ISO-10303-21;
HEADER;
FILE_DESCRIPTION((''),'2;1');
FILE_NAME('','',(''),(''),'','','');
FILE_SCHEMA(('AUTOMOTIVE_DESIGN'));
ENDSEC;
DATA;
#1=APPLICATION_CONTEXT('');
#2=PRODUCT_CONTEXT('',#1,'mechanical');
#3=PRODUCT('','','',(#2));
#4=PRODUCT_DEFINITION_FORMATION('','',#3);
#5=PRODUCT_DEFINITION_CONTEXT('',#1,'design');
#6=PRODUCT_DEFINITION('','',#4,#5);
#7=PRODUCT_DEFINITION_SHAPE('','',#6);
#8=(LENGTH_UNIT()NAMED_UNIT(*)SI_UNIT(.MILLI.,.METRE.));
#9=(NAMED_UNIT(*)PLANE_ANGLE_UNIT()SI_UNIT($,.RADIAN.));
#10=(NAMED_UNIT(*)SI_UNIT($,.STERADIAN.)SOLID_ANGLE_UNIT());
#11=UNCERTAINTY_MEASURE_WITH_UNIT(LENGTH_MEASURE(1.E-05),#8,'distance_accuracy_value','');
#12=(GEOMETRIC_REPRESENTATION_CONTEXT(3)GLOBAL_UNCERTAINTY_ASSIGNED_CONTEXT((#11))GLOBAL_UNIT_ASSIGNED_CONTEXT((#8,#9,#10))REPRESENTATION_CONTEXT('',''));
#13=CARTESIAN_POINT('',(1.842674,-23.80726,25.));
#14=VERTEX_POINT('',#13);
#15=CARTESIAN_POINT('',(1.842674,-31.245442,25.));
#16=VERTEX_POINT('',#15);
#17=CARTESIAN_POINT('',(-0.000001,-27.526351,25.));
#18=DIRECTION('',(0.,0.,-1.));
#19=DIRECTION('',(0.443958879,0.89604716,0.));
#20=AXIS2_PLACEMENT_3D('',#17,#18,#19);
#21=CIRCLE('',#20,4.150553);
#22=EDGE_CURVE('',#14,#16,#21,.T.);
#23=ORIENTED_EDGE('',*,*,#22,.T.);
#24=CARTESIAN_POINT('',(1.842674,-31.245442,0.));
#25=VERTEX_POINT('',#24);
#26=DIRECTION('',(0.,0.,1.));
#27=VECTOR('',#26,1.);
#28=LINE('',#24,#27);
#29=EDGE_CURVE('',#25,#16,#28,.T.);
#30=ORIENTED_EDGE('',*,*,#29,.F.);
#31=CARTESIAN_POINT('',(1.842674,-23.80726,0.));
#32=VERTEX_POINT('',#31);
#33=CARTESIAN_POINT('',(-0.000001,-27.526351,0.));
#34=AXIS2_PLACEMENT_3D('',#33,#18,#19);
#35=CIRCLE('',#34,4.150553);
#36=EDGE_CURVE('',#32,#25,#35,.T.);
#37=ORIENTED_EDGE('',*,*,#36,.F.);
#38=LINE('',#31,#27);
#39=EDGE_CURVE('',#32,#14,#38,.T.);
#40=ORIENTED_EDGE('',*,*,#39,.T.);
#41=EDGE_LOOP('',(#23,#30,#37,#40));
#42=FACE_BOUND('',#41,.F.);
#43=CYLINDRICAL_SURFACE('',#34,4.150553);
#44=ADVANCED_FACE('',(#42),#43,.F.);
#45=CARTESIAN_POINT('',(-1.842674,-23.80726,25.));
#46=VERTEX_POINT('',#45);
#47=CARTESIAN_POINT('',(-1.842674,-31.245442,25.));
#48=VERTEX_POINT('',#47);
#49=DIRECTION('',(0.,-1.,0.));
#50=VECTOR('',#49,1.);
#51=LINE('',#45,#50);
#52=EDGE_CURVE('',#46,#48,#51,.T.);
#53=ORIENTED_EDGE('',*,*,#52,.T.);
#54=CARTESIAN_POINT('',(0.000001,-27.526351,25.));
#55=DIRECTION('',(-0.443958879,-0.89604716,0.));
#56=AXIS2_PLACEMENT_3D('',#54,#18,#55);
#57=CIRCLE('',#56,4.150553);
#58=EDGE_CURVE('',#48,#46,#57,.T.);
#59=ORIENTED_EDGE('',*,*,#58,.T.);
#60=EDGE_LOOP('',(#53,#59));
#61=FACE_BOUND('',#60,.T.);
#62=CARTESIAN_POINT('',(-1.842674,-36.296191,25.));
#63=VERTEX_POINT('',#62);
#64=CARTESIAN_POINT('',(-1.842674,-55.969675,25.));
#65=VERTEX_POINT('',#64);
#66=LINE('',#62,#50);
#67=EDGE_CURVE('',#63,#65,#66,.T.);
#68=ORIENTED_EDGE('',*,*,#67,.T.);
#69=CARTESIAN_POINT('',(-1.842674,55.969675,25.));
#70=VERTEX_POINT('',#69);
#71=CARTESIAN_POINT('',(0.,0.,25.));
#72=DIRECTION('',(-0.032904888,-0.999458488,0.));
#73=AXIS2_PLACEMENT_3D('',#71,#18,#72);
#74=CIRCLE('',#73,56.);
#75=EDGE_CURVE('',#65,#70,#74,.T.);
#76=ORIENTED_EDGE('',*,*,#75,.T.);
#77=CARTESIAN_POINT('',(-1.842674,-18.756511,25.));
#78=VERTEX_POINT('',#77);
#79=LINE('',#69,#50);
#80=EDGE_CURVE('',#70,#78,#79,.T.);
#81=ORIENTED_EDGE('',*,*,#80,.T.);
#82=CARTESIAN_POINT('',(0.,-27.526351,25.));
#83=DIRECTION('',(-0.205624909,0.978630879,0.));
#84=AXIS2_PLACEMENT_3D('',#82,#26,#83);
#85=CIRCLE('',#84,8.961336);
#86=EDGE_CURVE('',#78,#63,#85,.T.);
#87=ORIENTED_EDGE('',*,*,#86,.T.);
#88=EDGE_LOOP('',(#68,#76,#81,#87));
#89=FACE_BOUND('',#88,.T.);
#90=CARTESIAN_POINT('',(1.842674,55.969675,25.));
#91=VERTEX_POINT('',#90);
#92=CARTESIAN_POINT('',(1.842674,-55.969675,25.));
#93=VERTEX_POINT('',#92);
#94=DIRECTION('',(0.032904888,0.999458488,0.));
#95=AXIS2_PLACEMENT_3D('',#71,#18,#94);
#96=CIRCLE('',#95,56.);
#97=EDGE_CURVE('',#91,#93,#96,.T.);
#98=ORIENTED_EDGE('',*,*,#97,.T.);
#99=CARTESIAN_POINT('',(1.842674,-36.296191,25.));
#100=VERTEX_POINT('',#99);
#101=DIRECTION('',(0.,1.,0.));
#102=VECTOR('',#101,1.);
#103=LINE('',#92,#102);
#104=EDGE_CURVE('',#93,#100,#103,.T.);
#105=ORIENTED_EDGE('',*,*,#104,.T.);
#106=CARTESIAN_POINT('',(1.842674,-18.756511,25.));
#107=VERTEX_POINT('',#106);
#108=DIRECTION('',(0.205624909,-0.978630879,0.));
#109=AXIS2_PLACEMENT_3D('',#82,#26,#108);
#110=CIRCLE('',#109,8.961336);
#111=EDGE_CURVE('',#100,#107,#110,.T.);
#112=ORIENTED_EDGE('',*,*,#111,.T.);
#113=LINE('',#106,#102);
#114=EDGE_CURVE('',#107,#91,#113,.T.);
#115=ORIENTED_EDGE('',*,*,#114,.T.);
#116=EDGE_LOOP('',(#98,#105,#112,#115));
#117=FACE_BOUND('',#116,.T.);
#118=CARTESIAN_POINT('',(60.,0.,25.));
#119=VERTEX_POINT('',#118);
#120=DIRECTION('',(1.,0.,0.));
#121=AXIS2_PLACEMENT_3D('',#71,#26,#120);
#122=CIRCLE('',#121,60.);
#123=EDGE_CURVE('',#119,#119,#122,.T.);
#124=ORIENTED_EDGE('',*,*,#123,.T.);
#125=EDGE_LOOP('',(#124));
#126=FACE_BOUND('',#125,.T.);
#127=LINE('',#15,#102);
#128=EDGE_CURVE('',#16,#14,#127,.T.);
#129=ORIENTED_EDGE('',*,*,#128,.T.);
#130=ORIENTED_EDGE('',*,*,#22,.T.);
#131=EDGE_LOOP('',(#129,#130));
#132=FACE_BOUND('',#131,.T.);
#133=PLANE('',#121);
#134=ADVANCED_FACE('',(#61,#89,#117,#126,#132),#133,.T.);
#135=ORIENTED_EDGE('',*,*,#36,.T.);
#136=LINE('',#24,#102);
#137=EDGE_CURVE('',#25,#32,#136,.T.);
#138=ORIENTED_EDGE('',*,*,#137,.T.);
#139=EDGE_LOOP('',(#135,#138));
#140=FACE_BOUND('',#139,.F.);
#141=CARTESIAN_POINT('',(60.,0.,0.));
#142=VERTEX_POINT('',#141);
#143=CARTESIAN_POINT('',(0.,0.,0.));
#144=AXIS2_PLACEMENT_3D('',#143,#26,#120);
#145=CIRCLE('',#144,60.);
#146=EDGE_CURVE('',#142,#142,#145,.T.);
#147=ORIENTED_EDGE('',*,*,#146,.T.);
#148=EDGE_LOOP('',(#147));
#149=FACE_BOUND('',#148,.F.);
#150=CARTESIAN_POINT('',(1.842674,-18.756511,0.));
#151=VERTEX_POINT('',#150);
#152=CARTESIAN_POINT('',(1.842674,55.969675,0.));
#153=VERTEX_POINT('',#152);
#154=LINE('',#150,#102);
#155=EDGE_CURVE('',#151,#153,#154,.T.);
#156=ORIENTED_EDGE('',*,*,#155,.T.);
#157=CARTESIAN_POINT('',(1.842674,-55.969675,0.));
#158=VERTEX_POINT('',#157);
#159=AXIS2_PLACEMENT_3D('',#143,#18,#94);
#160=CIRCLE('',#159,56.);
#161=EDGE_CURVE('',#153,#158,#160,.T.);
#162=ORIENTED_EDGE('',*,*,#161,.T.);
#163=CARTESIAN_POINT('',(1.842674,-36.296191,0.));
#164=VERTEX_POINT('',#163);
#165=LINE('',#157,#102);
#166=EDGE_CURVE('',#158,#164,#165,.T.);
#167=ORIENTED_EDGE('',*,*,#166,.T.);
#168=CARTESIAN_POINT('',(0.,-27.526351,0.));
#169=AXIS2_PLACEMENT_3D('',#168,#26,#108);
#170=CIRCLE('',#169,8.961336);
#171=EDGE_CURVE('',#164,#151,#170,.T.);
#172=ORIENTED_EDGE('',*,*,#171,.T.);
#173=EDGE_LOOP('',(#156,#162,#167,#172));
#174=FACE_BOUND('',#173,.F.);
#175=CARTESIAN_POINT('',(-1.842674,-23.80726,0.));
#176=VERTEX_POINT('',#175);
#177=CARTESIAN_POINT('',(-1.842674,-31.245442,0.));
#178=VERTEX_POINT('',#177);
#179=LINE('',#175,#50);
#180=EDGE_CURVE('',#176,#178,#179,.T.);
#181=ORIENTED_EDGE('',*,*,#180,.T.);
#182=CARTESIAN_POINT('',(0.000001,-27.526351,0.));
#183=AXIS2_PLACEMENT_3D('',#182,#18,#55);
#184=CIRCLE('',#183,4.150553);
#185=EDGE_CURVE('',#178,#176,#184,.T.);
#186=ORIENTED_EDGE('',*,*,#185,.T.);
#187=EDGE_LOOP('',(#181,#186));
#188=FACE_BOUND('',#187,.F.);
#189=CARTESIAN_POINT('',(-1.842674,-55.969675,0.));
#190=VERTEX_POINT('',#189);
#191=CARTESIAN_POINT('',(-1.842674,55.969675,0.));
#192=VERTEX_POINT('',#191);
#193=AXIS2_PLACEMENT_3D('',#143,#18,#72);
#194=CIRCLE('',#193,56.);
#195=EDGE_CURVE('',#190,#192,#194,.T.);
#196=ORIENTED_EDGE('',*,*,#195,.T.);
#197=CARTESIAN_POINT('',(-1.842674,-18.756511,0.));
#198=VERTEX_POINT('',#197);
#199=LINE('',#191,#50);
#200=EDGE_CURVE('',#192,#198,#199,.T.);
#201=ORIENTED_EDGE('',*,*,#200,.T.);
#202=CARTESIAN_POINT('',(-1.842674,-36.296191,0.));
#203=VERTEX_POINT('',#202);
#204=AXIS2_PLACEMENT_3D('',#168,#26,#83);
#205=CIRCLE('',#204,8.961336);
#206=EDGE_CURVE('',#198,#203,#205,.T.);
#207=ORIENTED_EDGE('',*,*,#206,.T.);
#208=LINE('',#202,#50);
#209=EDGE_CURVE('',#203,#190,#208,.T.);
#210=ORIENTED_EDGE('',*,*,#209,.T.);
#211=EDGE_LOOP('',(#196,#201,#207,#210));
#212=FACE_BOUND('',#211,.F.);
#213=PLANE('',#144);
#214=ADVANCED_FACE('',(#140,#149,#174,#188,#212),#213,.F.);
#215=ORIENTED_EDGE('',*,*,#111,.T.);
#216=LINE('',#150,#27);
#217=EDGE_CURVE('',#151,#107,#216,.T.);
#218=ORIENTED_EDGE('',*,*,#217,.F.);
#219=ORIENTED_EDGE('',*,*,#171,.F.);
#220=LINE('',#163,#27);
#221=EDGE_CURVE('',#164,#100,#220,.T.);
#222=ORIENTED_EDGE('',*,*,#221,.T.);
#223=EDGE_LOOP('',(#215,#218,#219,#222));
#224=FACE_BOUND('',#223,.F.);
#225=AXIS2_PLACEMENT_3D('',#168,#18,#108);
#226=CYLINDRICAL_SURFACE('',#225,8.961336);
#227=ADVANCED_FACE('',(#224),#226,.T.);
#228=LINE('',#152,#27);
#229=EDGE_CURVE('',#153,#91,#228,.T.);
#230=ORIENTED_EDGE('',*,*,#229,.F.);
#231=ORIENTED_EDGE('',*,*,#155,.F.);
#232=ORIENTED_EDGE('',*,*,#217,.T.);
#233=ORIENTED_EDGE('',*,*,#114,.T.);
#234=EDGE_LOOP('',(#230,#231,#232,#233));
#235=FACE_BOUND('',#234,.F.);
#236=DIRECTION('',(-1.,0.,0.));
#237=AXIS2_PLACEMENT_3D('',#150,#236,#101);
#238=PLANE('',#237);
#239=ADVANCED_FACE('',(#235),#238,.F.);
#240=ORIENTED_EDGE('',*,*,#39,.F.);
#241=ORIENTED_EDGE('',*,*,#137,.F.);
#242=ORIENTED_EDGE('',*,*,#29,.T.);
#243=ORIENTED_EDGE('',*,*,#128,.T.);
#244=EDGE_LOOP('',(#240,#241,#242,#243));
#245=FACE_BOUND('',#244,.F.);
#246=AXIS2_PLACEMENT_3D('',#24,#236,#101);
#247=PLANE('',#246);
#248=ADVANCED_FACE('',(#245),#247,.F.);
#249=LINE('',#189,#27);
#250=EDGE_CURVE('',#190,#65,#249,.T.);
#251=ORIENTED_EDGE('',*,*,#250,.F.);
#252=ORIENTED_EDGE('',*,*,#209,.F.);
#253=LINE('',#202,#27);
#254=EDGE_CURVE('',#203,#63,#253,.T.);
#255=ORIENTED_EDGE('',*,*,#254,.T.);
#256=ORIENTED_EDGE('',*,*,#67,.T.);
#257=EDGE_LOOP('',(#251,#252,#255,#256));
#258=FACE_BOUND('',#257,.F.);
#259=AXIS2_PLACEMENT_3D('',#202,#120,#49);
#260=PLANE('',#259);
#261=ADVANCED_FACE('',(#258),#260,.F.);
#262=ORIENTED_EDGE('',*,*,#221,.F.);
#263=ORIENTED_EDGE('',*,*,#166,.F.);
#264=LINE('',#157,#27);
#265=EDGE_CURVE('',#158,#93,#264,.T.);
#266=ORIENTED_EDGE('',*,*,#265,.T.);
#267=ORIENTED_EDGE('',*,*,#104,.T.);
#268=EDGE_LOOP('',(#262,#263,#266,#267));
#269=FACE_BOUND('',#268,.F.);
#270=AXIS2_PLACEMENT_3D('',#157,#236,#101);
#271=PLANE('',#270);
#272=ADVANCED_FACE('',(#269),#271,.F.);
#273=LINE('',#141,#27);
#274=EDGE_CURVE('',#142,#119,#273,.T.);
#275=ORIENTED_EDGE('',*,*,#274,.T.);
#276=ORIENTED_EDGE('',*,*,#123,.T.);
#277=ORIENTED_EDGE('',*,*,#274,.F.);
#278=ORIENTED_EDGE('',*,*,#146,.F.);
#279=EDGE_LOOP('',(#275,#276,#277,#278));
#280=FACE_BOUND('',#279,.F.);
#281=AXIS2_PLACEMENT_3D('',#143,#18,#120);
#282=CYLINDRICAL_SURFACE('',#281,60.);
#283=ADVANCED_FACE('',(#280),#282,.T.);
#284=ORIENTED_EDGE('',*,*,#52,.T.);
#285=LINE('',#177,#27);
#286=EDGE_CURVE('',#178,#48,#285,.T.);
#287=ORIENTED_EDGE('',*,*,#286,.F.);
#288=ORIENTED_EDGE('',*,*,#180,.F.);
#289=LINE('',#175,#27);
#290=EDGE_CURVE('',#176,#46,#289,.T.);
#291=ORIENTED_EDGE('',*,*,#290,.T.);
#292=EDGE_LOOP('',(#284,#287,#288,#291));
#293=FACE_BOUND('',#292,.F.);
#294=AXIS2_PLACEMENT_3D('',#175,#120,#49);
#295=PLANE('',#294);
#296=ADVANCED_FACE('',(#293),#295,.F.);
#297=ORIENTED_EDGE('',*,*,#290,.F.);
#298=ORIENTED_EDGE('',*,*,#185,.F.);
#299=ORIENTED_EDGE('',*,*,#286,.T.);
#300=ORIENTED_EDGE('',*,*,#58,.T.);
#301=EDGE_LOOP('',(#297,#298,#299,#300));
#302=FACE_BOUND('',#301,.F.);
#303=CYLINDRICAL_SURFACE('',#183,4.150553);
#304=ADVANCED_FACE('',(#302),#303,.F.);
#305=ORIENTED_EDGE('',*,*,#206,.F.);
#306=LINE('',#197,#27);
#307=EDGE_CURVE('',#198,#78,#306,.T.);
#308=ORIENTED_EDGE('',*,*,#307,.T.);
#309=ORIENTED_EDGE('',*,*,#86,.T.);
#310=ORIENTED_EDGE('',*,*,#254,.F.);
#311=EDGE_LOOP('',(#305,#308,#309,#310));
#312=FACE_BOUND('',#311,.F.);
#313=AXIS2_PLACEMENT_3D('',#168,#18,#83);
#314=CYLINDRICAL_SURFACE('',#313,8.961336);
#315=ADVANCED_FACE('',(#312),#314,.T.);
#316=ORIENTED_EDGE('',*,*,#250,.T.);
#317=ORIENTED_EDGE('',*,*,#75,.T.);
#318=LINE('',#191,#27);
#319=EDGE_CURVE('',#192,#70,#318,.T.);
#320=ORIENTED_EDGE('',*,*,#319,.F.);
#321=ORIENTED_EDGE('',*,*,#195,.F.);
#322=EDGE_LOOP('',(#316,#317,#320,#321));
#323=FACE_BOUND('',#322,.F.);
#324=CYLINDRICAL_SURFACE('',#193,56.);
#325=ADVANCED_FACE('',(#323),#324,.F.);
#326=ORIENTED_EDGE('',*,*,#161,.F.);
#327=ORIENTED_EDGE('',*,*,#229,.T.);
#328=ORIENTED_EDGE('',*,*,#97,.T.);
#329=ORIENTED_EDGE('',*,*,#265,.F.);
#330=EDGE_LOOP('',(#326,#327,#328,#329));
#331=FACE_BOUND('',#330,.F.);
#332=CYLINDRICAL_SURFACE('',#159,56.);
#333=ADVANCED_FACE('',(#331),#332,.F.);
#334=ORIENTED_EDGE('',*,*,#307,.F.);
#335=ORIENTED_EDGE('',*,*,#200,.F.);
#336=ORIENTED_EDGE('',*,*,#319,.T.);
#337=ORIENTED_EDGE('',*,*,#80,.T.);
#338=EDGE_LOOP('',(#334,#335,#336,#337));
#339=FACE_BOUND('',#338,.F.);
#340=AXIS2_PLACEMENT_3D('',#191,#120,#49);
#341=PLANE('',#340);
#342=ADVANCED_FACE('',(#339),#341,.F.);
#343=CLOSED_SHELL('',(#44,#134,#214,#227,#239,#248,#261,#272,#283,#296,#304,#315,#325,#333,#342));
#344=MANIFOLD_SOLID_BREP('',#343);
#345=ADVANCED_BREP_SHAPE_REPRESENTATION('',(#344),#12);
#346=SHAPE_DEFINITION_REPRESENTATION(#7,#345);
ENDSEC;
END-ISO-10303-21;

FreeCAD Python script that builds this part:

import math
import FreeCAD as App
import Part
import Sketcher
Q = App.Units.Quantity

doc = App.newDocument("Part")
body = doc.addObject("PartDesign::Body", "Body")

# Sketch on XY plane
sketch1 = doc.addObject("Sketcher::SketchObject", "Sketch")
body.addObject(sketch1)
sketch1.AttachmentSupport = (doc.XY_Plane, [""])
sketch1.MapMode = "FlatFace"
sketch1.addGeometry(Part.Circle(App.Vector(0, 0, 0), App.Vector(0, 0, 1), 60), False)
sketch1.addGeometry(Part.LineSegment(App.Vector(-1.8, -36.3, 0), App.Vector(-1.8, -56, 0)), False)
sketch1.addGeometry(Part.ArcOfCircle(Part.Circle(App.Vector(0, 0, 0), App.Vector(0, 0, 1), 56), math.radians(92), math.radians(268)), False)
sketch1.addGeometry(Part.LineSegment(App.Vector(-1.8, 56, 0), App.Vector(-1.8, -18.8, 0)), False)
sketch1.addGeometry(Part.ArcOfCircle(Part.Circle(App.Vector(0, -27.5, 0), App.Vector(0, 0, 1), 9), math.radians(102), math.radians(258)), False)
sketch1.addGeometry(Part.LineSegment(App.Vector(-1.8, -23.8, 0), App.Vector(-1.8, -31.2, 0)), False)
sketch1.addGeometry(Part.ArcOfCircle(Part.Circle(App.Vector(0, -27.5, 0), App.Vector(0, 0, 1), 4.2), math.radians(116), math.radians(244)), False)
sketch1.addGeometry(Part.ArcOfCircle(Part.Circle(App.Vector(0, -27.5, 0), App.Vector(0, 0, 1), 4.2), math.radians(-64), math.radians(64)), False)
sketch1.addGeometry(Part.LineSegment(App.Vector(1.8, -31.2, 0), App.Vector(1.8, -23.8, 0)), False)
sketch1.addGeometry(Part.ArcOfCircle(Part.Circle(App.Vector(0, -27.5, 0), App.Vector(0, 0, 1), 9), math.radians(-78), math.radians(78)), False)
sketch1.addGeometry(Part.LineSegment(App.Vector(1.8, -18.8, 0), App.Vector(1.8, 56, 0)), False)
sketch1.addGeometry(Part.ArcOfCircle(Part.Circle(App.Vector(0, 0, 0), App.Vector(0, 0, 1), 56), math.radians(-88), math.radians(88)), False)
sketch1.addGeometry(Part.LineSegment(App.Vector(1.8, -56, 0), App.Vector(1.8, -36.3, 0)), False)
sketch1.addConstraint(Sketcher.Constraint("Coincident", 1, 2, 2, 2))
sketch1.addConstraint(Sketcher.Constraint("Coincident", 2, 1, 3, 1))
sketch1.addConstraint(Sketcher.Constraint("Coincident", 3, 2, 4, 1))
sketch1.addConstraint(Sketcher.Constraint("Coincident", 4, 2, 1, 1))
sketch1.addConstraint(Sketcher.Constraint("Coincident", 5, 1, 6, 1))
sketch1.addConstraint(Sketcher.Constraint("Coincident", 6, 2, 5, 2))
sketch1.addConstraint(Sketcher.Constraint("Coincident", 7, 1, 8, 1))
sketch1.addConstraint(Sketcher.Constraint("Coincident", 8, 2, 7, 2))
sketch1.addConstraint(Sketcher.Constraint("Coincident", 9, 2, 10, 1))
sketch1.addConstraint(Sketcher.Constraint("Coincident", 10, 2, 11, 2))
sketch1.addConstraint(Sketcher.Constraint("Coincident", 11, 1, 12, 1))
sketch1.addConstraint(Sketcher.Constraint("Coincident", 12, 2, 9, 1))
sketch1.addConstraint(Sketcher.Constraint("Vertical", 1))
sketch1.addConstraint(Sketcher.Constraint("Vertical", 3))
sketch1.addConstraint(Sketcher.Constraint("Vertical", 5))
sketch1.addConstraint(Sketcher.Constraint("Vertical", 8))
sketch1.addConstraint(Sketcher.Constraint("Vertical", 10))
sketch1.addConstraint(Sketcher.Constraint("Vertical", 12))
sketch1.addConstraint(Sketcher.Constraint("Coincident", 0, 3, -1, 1))
sketch1.addConstraint(Sketcher.Constraint("Coincident", 2, 3, -1, 1))
sketch1.addConstraint(Sketcher.Constraint("Coincident", 11, 3, -1, 1))
sketch1.addConstraint(Sketcher.Constraint("Coincident", 6, 3, 4, 3))
sketch1.addConstraint(Sketcher.Constraint("Coincident", 7, 3, 4, 3))
sketch1.addConstraint(Sketcher.Constraint("Coincident", 9, 3, 4, 3))
sketch1.addConstraint(Sketcher.Constraint("Equal", 6, 7))
sketch1.addConstraint(Sketcher.Constraint("Equal", 4, 9))
sketch1.addConstraint(Sketcher.Constraint("Equal", 2, 11))
sketch1.addConstraint(Sketcher.Constraint("Symmetric", 6, 2, 7, 1, -2))
sketch1.addConstraint(Sketcher.Constraint("Horizontal", 3, 2, 9, 2))
sketch1.addConstraint(Sketcher.Constraint("Horizontal", 1, 2, 11, 1))
sketch1.addConstraint(Sketcher.Constraint("Vertical", 1, 2, 2, 1))
sketch1.addConstraint(Sketcher.Constraint("Vertical", 4, 2, 5, 1))
sketch1.addConstraint(Sketcher.Constraint("Diameter", 0, Q("120 mm")))
sketch1.addConstraint(Sketcher.Constraint("Radius", 2, Q("56 mm")))
sketch1.addConstraint(Sketcher.Constraint("Radius", 4, Q("8.961336 mm")))
sketch1.addConstraint(Sketcher.Constraint("Radius", 6, Q("4.150553 mm")))
sketch1.addConstraint(Sketcher.Constraint("DistanceY", 1, 2, 1, 1, Q("19.673484 mm")))
sketch1.addConstraint(Sketcher.Constraint("DistanceY", 3, 2, 3, 1, Q("74.726186 mm")))
pad1 = doc.addObject("PartDesign::Pad", "Pad")
body.addObject(pad1)
pad1.Profile = sketch1
pad1.Length = 25

doc.recompute()
